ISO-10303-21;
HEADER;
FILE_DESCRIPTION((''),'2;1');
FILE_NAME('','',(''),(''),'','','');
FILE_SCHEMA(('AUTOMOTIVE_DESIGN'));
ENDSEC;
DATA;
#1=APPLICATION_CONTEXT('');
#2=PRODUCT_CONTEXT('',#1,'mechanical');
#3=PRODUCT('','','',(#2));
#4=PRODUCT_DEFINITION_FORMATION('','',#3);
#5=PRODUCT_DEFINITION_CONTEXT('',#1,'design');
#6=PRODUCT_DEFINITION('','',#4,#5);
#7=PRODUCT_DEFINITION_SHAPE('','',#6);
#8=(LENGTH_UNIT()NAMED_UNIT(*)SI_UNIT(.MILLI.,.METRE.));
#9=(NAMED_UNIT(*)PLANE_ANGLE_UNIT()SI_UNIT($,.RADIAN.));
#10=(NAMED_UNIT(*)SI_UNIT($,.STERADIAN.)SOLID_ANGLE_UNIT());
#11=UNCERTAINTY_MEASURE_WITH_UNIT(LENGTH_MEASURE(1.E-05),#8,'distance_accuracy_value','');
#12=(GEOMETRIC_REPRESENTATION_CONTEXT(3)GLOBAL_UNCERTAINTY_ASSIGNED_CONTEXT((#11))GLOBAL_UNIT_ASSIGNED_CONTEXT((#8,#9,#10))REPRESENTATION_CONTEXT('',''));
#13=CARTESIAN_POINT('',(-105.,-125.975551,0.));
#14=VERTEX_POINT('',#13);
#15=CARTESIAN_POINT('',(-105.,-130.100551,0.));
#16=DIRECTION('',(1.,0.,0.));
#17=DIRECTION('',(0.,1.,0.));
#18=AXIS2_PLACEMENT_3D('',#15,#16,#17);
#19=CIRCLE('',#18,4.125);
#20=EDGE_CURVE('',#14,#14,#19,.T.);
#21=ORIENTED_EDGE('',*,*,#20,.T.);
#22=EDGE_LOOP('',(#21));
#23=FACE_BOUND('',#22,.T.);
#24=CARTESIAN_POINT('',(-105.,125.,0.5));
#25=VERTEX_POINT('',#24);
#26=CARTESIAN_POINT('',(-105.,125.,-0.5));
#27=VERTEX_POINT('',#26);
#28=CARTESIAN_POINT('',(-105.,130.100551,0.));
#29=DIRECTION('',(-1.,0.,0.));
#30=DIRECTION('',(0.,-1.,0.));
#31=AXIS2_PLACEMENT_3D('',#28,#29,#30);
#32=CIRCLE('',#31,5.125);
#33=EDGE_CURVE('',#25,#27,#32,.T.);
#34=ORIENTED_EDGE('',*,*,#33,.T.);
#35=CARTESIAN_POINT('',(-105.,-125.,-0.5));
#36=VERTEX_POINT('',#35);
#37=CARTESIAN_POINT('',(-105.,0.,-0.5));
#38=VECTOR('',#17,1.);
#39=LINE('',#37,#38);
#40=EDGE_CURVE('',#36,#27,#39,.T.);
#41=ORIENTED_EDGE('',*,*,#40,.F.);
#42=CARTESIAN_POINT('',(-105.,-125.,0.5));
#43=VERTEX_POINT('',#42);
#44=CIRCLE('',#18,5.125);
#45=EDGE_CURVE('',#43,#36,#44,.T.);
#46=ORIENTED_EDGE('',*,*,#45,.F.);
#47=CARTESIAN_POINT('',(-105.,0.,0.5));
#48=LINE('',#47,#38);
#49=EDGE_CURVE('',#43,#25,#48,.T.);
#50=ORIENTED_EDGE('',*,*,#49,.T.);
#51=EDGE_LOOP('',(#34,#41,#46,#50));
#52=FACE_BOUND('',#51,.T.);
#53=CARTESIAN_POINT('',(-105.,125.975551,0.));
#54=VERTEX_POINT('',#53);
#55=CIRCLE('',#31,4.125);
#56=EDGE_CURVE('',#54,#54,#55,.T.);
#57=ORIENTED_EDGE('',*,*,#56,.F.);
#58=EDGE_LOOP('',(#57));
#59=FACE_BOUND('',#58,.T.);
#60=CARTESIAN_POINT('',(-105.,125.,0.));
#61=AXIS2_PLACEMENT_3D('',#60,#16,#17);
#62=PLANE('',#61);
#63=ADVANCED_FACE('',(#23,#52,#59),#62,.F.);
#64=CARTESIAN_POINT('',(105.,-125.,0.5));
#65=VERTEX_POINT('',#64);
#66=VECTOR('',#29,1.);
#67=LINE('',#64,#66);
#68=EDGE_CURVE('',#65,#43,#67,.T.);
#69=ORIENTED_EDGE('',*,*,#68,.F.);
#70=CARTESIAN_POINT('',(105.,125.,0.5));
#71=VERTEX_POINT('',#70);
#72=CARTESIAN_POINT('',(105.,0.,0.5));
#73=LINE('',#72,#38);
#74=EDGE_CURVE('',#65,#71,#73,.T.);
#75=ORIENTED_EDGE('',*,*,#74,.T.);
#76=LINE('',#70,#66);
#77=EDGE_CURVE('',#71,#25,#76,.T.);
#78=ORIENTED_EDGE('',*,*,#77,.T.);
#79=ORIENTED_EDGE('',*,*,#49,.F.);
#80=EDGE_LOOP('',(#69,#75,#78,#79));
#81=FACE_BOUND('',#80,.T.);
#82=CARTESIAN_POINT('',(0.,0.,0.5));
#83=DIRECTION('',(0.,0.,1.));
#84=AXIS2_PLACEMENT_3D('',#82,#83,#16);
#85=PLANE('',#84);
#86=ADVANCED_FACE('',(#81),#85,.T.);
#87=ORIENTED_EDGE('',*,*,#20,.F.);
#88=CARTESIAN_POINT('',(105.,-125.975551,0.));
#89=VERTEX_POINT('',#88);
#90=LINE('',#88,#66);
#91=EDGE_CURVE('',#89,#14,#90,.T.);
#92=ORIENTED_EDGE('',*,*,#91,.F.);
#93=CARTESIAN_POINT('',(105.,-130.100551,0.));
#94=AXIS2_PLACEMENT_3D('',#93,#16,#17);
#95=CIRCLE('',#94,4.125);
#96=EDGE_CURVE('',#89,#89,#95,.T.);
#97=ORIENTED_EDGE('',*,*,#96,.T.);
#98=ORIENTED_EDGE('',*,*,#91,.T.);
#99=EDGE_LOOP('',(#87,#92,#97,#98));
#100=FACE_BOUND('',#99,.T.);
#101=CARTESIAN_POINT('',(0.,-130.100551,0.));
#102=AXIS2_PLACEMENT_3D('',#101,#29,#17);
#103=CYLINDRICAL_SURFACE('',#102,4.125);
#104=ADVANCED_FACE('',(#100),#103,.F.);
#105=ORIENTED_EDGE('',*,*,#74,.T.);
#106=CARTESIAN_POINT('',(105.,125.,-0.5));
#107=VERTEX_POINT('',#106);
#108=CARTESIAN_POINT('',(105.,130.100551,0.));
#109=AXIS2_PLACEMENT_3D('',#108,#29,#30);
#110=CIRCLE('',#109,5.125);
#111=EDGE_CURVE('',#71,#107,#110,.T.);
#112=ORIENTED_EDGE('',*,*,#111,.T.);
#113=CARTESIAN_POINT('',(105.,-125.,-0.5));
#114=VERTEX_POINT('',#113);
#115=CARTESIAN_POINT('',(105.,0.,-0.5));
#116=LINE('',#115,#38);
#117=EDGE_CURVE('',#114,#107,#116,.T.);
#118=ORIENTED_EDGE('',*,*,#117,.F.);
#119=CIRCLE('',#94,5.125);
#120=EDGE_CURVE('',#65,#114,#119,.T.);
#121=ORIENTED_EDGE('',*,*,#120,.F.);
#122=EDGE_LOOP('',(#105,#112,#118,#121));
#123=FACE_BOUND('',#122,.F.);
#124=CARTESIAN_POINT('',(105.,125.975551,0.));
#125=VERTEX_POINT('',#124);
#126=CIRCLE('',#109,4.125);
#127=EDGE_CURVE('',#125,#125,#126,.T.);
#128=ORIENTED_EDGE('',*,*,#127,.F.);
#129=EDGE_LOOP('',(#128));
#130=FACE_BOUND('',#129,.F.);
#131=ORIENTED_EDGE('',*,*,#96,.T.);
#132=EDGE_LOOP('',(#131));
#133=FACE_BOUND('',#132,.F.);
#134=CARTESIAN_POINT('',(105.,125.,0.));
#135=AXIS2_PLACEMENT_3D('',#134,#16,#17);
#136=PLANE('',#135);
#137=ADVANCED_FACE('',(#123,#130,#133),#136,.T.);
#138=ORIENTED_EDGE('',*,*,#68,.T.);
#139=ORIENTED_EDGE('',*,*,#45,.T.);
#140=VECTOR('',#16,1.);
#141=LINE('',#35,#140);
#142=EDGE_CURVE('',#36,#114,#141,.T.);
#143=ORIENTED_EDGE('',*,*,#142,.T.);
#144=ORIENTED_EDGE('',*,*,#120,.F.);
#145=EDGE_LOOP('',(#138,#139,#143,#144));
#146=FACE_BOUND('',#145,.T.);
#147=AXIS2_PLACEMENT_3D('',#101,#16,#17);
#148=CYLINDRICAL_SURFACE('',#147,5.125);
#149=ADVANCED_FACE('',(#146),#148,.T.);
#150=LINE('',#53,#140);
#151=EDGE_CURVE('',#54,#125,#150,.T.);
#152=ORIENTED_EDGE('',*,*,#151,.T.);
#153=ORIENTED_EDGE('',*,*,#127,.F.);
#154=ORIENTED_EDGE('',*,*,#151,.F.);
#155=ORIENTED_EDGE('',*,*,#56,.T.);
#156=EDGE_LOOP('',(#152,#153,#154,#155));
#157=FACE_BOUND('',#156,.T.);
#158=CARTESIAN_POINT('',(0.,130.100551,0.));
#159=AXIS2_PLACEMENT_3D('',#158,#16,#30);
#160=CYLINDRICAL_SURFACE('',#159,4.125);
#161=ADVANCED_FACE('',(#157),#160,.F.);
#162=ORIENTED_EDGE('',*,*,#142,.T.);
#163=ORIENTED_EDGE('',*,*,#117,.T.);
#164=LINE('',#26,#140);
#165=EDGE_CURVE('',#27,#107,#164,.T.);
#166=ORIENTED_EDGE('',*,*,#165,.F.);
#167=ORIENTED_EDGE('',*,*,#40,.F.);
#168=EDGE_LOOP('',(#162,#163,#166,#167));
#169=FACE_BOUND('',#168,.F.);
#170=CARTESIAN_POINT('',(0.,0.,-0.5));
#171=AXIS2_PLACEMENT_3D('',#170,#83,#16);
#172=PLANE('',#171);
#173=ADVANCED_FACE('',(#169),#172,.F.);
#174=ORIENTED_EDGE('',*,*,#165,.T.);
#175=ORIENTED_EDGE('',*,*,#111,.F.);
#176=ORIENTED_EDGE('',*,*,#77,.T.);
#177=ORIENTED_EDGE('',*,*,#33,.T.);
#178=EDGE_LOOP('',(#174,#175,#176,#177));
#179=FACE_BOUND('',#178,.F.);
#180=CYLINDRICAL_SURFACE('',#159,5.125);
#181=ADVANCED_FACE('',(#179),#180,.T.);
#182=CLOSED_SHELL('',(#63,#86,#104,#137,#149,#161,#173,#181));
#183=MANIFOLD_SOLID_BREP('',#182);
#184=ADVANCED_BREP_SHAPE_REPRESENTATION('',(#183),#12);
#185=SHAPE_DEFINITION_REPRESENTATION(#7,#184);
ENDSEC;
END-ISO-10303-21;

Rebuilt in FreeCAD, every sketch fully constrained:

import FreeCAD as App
import Part
import Sketcher
from FreeCAD import Vector

doc = App.newDocument("Part")
body = doc.addObject("PartDesign::Body", "Body")

# Sketch on XY plane
sketch1 = doc.addObject("Sketcher::SketchObject", "Sketch")
body.addObject(sketch1)
sketch1.AttachmentSupport = (doc.XY_Plane, [""])
sketch1.MapMode = "FlatFace"
sketch1.addGeometry([
    Part.LineSegment(Vector(-105, 125, 0), Vector(-105, -125, 0)),
    Part.LineSegment(Vector(-105, -125, 0), Vector(105, -125, 0)),
    Part.LineSegment(Vector(105, -125, 0), Vector(105, 125, 0)),
    Part.LineSegment(Vector(105, 125, 0), Vector(-105, 125, 0)),
], False)
sketch1.addConstraint([
    Sketcher.Constraint("Coincident", 0, 2, 1, 1),
    Sketcher.Constraint("Coincident", 1, 2, 2, 1),
    Sketcher.Constraint("Coincident", 2, 2, 3, 1),
    Sketcher.Constraint("Coincident", 3, 2, 0, 1),
    Sketcher.Constraint("Vertical", 0),
    Sketcher.Constraint("Horizontal", 1),
    Sketcher.Constraint("Vertical", 2),
    Sketcher.Constraint("Horizontal", 3),
    Sketcher.Constraint("Symmetric", 0, 2, 2, 2, -1, 1),
    Sketcher.Constraint("DistanceX", 1, 1, 1, 2, 210.0),
    Sketcher.Constraint("DistanceY", 0, 2, 0, 1, 250.0),
])
pad1 = doc.addObject("PartDesign::Pad", "Pad")
body.addObject(pad1)
pad1.Profile = sketch1
pad1.Length = 1
pad1.Midplane = True

# Sketch on YZ plane
sketch2 = doc.addObject("Sketcher::SketchObject", "Sketch001")
body.addObject(sketch2)
sketch2.AttachmentSupport = (doc.YZ_Plane, [""])
sketch2.MapMode = "FlatFace"
sketch2.addGeometry([
    Part.Circle(Vector(-130.1, 0, 0), Vector(0, 0, 1), 5.1),
    Part.Circle(Vector(-130.1, 0, 0), Vector(0, 0, 1), 4.1),
], False)
sketch2.addConstraint([
    Sketcher.Constraint("Coincident", 1, 3, 0, 3),
    Sketcher.Constraint("PointOnObject", 0, 3, -1),
    Sketcher.Constraint("Diameter", 0, 10.25),
    Sketcher.Constraint("Diameter", 1, 8.25),
    Sketcher.Constraint("DistanceX", 0, 3, -1, 1, 130.100551),
])
pad2 = doc.addObject("PartDesign::Pad", "Pad001")
body.addObject(pad2)
pad2.Profile = sketch2
pad2.Type = "TwoLengths"
pad2.Length = 105
pad2.Length2 = 105
body2 = doc.addObject("PartDesign::Body", "Body001")
doc.recompute()

body2.BaseFeature = body
doc.recompute()

mirroring = doc.addObject("Part::Mirroring", "Mirroring")
mirroring.Source = body
mirroring.Base = Vector(0, 0, 0)
mirroring.Normal = Vector(0, -1, 0)
body3 = doc.addObject("PartDesign::Body", "Body002")
body3.BaseFeature = mirroring
boolean = doc.addObject("PartDesign::Boolean", "Boolean")
body2.addObject(boolean)
boolean.Type = "Fuse"
boolean.addObjects([body3])
doc.recompute()
mirroring.Visibility = False

doc.recompute()
